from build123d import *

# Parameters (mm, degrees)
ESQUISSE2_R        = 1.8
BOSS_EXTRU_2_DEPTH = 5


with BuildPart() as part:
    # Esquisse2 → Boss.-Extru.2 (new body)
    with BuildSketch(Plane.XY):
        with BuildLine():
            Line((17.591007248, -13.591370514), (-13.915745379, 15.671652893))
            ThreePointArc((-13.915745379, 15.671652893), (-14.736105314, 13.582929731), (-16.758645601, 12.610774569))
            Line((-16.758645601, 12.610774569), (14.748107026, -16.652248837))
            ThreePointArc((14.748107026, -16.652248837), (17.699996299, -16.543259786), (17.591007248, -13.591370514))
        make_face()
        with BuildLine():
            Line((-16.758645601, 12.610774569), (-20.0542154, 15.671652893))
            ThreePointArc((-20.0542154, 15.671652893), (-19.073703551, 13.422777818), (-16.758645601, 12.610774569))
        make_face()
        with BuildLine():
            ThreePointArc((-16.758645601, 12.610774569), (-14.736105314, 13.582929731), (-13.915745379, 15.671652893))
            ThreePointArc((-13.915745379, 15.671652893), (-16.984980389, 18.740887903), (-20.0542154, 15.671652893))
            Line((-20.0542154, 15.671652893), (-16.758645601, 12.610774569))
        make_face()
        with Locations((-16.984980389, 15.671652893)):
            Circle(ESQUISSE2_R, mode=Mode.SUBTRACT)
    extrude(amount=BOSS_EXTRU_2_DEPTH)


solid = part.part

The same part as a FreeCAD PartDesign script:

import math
import FreeCAD as App
import Part
import Sketcher

V = App.Vector
Q = App.Units.Quantity

doc = App.newDocument("Part")
params = doc.addObject("Spreadsheet::Sheet", "Params")
for row, (alias, value) in enumerate([
    ("sketch1_diameter", "3.6 mm"),
    ("sketch1_length", "43 mm"),
    ("pad1_length", "5 mm"),
], start=1):
    params.set(f"A{row}", alias)
    params.set(f"B{row}", "=" + value)
    params.setAlias(f"B{row}", alias)

body = doc.addObject("PartDesign::Body", "Body")

# Sketch on XY plane
sketch1 = body.newObject("Sketcher::SketchObject", "Sketch")
sketch1.AttachmentSupport = (doc.getObject("XY_Plane"), [""])
sketch1.MapMode = "FlatFace"
sketch1.addGeometry([
    Part.LineSegment(V(17.6, -13.6, 0), V(-13.9, 15.7, 0)),  # 0
    Part.ArcOfCircle(Part.Circle(V(-17, 15.7, 0), V(0, 0, 1), 3.1), math.radians(0), math.radians(180)),  # 1
    Part.ArcOfCircle(Part.Circle(V(-17, 15.7, 0), V(0, 0, 1), 3.1), math.radians(-180), math.radians(-86)),  # 2
    Part.LineSegment(V(-16.8, 12.6, 0), V(14.7, -16.7, 0)),  # 3
    Part.ArcOfCircle(Part.Circle(V(16.2, -15.1, 0), V(0, 0, 1), 2.1), math.radians(-133), math.radians(47)),  # 4
    Part.Circle(V(-17, 15.7, 0), V(0, 0, 1), 1.8),  # 5
], False)
sketch1.addConstraint([
    Sketcher.Constraint("Coincident", 0, 2, 1, 1),
    Sketcher.Constraint("Tangent", 1, 2, 2, 1),
    Sketcher.Constraint("Coincident", 2, 2, 3, 1),
    Sketcher.Constraint("Tangent", 3, 2, 4, 1),
    Sketcher.Constraint("Tangent", 4, 2, 0, 1),
    Sketcher.Constraint("Coincident", 5, 3, 1, 3),
    Sketcher.Constraint("Equal", 1, 2),
    Sketcher.Constraint("Parallel", 0, 3),
    Sketcher.Constraint("Horizontal", 5, 3, 0, 2),
    Sketcher.Constraint("Horizontal", 0, 2, 1, 2),
    Sketcher.Constraint("Equal", 0, 3),
    Sketcher.Constraint("Diameter", 5, Q("3.6 mm")),
    Sketcher.Constraint("Distance", 0, Q("43 mm")),
    Sketcher.Constraint("Radius", 1, Q("3.069235 mm")),
    Sketcher.Constraint("Radius", 4, Q("2.088723 mm")),
    Sketcher.Constraint("DistanceX", 1, 3, -1, 1, Q("16.98498 mm")),
    Sketcher.Constraint("DistanceY", 4, 3, -1, 1, Q("15.12181 mm")),
])
sketch1.setExpression("Constraints[11]", "Params.sketch1_diameter")
sketch1.setExpression("Constraints[12]", "Params.sketch1_length")
pad1 = body.newObject("PartDesign::Pad", "Pad")
pad1.Profile = sketch1
pad1.setExpression("Length", "Params.pad1_length")

doc.recompute()
